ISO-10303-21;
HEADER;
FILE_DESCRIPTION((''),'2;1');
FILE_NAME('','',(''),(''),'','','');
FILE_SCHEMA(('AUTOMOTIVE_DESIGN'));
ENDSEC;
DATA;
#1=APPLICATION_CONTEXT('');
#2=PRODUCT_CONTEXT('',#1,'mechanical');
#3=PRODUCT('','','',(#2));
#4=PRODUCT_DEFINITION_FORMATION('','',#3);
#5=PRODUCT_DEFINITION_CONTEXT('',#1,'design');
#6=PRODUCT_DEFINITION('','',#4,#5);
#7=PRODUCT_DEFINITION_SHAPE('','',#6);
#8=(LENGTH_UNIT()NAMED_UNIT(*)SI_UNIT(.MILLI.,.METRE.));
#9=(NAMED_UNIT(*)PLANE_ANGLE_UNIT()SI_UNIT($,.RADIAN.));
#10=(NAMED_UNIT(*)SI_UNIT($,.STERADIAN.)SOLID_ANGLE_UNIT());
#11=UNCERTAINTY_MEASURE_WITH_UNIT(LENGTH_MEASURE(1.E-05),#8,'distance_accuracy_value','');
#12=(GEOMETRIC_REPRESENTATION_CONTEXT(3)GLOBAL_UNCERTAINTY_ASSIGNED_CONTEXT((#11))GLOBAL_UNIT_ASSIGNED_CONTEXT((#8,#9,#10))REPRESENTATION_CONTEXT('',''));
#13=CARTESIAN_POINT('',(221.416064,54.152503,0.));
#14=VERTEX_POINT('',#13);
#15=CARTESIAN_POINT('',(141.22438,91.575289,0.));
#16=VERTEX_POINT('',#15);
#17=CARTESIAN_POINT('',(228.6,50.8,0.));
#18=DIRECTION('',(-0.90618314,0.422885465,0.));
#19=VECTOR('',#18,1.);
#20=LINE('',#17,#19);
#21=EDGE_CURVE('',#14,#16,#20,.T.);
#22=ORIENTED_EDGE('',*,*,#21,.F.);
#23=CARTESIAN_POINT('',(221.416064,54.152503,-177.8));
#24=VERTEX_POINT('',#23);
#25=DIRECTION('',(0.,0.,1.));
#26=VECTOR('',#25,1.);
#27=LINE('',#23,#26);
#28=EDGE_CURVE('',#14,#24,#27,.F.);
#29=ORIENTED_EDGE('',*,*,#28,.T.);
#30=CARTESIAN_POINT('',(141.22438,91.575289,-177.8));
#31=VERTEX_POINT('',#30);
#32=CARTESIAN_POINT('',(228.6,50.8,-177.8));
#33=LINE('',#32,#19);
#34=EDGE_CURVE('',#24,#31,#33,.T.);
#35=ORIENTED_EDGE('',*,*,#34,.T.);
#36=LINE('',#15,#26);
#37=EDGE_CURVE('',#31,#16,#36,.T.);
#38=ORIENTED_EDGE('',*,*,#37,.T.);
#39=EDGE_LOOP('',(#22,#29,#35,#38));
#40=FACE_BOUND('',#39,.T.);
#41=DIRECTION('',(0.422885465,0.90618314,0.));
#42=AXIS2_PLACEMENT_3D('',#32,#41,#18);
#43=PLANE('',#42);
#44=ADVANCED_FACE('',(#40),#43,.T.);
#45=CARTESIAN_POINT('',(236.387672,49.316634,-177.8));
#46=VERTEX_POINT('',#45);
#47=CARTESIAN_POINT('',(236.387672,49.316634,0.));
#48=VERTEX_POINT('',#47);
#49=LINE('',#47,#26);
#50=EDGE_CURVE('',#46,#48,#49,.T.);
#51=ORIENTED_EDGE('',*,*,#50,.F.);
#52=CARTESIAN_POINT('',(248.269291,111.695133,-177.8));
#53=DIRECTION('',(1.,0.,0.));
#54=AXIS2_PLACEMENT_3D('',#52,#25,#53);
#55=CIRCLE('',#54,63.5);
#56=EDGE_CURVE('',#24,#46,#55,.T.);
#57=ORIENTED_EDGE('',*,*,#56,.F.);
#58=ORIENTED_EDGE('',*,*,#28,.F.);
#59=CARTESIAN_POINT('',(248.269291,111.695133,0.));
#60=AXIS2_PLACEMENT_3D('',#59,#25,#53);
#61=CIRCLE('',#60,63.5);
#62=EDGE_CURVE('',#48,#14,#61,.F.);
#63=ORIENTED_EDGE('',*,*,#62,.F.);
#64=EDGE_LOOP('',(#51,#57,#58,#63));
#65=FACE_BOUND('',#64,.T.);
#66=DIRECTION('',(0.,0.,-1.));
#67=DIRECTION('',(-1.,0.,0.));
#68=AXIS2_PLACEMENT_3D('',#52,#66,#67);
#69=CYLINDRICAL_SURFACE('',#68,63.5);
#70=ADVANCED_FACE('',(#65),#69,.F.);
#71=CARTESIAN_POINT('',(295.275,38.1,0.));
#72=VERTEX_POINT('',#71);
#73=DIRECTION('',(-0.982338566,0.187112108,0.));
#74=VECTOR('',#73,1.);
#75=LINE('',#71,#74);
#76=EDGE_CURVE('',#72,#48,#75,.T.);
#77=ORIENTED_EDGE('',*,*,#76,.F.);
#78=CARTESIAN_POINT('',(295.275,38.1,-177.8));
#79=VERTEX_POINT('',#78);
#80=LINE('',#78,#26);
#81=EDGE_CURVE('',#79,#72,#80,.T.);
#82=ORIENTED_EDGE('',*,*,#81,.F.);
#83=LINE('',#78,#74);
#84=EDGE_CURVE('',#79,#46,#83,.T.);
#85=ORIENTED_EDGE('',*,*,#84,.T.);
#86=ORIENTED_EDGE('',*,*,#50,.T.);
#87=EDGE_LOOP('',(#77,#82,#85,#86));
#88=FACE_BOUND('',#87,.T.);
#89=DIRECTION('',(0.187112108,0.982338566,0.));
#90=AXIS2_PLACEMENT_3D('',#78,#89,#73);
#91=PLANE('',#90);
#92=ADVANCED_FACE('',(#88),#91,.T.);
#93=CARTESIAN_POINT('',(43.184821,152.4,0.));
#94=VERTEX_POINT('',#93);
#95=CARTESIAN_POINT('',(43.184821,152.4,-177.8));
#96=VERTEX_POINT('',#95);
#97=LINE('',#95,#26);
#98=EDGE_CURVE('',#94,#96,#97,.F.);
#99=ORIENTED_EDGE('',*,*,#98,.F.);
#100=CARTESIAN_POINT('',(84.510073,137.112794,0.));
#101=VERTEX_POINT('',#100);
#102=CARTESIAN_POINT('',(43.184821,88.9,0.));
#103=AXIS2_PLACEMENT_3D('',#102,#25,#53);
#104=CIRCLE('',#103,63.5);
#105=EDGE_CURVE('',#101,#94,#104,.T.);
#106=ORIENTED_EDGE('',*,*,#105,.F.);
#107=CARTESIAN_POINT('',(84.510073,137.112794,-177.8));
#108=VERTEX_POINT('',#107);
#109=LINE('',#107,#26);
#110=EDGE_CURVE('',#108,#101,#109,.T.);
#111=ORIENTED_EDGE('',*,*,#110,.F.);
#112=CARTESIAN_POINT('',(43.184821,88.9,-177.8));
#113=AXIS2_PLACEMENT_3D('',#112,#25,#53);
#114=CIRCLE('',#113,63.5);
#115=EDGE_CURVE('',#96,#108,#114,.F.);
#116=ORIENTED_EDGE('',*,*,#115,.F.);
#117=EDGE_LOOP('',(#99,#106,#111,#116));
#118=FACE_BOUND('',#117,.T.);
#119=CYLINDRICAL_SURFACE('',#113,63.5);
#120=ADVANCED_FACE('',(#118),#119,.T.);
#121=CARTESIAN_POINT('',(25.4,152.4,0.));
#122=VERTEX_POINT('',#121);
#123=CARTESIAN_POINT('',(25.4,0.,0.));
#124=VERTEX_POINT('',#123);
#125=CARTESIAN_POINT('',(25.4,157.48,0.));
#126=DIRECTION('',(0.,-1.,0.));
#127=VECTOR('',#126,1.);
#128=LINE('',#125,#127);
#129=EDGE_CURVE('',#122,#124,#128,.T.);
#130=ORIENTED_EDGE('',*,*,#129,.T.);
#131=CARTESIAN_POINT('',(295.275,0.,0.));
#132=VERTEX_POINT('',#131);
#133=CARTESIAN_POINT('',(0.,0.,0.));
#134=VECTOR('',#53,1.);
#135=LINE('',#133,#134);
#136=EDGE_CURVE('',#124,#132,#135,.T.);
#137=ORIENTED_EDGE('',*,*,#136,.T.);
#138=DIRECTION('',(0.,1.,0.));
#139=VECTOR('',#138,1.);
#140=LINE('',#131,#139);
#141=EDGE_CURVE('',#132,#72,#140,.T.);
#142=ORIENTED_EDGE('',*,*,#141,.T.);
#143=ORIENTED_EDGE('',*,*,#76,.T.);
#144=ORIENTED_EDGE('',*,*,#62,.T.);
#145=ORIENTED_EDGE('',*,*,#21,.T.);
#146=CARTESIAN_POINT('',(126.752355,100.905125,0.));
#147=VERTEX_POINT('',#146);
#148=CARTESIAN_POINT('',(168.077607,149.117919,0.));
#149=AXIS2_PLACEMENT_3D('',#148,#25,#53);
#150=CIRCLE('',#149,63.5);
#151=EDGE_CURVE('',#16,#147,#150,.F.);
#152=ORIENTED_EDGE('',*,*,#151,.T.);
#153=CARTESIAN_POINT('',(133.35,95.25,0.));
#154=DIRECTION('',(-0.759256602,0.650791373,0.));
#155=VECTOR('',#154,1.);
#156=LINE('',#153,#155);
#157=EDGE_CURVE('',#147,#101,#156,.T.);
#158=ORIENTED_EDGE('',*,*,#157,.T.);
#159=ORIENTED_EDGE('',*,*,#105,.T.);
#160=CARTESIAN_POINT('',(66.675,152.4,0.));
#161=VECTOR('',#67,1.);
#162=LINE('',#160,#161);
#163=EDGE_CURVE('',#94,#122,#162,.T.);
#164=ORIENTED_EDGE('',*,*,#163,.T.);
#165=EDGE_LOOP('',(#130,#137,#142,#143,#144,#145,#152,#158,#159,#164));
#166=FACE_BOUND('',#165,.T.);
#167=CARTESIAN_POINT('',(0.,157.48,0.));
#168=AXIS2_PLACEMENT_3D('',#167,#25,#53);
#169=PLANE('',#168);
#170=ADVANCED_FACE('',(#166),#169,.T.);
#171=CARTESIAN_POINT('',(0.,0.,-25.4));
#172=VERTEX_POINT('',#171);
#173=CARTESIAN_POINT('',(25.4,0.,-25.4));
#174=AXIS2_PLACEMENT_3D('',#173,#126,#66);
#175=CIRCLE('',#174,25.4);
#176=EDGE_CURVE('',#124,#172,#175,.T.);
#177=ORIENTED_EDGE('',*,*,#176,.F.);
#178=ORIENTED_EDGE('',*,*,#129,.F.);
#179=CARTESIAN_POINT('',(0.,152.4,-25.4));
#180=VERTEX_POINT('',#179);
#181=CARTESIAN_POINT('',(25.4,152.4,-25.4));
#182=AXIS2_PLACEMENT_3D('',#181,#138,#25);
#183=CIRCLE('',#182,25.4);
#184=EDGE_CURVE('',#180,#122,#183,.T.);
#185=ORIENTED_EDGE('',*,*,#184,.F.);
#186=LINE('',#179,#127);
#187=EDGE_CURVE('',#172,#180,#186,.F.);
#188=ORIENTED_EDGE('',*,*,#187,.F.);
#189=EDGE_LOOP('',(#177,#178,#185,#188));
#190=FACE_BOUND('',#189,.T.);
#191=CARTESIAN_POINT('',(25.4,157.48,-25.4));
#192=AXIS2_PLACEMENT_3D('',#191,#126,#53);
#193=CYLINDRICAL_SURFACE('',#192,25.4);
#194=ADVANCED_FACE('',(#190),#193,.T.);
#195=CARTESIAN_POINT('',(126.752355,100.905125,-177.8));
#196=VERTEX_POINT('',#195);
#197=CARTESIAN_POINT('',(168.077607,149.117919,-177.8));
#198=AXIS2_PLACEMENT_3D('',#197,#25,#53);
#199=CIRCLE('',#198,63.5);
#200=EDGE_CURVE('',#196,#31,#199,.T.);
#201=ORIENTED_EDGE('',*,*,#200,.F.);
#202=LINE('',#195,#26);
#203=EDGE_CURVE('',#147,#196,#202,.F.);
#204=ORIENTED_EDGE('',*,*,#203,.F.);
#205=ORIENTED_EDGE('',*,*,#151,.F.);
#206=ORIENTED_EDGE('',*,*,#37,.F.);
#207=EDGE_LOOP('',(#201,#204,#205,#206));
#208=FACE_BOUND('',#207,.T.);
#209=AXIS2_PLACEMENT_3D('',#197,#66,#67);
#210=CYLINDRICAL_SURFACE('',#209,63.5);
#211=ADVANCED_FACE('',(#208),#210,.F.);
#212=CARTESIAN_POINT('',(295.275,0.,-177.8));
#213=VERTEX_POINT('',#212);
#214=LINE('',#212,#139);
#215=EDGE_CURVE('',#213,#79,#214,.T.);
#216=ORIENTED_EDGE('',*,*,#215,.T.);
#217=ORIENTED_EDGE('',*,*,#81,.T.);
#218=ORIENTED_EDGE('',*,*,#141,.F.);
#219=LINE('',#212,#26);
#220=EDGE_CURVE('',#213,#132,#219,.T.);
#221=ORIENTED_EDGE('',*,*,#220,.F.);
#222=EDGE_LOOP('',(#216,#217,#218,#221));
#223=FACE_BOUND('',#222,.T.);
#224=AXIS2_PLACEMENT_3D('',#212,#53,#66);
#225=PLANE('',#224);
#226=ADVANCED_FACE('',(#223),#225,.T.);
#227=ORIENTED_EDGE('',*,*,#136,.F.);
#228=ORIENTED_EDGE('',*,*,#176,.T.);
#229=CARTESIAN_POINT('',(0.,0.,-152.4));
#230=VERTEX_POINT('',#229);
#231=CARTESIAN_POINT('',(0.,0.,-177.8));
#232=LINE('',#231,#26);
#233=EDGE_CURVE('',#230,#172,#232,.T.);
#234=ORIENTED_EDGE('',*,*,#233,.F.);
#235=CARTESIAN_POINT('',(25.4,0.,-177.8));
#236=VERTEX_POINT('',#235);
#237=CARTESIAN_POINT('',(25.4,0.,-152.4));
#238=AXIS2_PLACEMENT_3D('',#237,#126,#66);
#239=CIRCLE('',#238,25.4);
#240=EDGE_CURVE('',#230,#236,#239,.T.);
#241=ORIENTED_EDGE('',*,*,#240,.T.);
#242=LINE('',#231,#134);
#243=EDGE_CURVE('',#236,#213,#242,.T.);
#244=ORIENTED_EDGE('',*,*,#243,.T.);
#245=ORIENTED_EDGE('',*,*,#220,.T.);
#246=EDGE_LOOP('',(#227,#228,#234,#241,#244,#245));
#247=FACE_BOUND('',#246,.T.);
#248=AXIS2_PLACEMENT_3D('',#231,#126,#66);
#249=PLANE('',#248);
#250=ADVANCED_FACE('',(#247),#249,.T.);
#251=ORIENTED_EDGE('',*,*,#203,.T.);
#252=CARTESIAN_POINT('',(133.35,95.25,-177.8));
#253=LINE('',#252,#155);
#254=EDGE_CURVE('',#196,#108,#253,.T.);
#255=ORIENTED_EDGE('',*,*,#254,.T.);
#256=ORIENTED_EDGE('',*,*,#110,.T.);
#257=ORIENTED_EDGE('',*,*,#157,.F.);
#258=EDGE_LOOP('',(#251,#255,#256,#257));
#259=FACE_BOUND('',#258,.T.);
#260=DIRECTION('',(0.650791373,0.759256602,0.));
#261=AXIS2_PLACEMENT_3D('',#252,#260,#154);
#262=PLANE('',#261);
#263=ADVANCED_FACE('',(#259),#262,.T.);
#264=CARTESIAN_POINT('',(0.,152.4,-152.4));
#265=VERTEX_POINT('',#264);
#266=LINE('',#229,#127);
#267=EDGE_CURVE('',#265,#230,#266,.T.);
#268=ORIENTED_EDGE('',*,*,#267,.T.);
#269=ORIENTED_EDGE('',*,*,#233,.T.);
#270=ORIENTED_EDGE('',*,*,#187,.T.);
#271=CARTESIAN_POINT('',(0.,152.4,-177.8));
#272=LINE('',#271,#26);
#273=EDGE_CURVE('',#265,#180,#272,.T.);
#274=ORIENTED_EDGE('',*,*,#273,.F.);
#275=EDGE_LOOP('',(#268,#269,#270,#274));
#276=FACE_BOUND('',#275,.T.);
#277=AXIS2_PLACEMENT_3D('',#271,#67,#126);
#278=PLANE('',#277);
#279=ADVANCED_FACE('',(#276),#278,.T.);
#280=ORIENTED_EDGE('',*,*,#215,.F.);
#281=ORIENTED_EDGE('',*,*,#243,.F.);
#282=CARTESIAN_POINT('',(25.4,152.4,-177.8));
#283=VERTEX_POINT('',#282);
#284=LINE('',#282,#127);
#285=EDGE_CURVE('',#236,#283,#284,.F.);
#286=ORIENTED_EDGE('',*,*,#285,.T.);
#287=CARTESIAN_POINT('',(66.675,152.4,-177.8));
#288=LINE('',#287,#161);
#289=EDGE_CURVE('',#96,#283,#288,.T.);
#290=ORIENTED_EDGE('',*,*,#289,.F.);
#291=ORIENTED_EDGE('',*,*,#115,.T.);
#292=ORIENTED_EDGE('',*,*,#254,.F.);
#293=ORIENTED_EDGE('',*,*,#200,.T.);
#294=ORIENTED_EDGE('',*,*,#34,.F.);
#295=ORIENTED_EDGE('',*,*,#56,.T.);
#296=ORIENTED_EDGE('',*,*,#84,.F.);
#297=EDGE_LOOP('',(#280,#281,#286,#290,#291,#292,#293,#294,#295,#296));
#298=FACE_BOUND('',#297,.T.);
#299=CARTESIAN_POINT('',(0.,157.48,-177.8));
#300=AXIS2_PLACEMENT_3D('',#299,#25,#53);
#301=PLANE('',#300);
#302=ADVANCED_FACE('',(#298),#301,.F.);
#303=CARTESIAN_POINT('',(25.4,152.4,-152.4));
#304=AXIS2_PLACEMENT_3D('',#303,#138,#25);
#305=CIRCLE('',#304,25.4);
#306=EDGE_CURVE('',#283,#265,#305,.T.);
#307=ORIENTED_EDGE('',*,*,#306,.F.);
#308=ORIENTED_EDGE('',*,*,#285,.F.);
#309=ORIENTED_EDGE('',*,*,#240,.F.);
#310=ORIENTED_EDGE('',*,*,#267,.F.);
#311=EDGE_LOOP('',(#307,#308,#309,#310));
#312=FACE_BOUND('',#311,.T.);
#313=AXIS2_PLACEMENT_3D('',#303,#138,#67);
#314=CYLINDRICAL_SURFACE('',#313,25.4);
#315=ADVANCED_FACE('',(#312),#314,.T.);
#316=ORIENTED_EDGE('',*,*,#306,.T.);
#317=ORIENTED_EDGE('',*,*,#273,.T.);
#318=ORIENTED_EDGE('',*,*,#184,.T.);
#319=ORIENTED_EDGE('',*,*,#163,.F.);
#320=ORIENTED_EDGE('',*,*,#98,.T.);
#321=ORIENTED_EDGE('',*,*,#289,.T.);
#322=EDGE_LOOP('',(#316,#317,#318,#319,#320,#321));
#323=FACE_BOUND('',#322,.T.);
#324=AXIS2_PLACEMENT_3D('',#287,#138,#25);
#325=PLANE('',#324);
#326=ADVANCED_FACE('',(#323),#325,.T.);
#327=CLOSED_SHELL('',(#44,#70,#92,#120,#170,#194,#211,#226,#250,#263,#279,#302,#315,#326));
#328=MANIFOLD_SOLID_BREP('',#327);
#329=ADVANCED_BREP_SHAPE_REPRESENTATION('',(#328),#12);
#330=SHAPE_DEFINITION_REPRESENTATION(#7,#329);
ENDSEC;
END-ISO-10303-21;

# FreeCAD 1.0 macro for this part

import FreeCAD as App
import Part
import Sketcher

V = App.Vector
Q = App.Units.Quantity


def edges_at(feature, points):
    """Names of the edges that pass closest to the given points."""
    edges = feature.Shape.Edges
    near = lambda p: min(range(len(edges)), key=lambda i: edges[i].distToShape(Part.Vertex(*p))[0])
    return sorted({f"Edge{near(p) + 1}" for p in points})


def add_polygon(sketch, points):
    """Adds a closed chain of lines whose ends are joined by coincident constraints."""
    first, n = sketch.GeometryCount, len(points)
    for a, b in zip(points, points[1:] + points[:1]):
        sketch.addGeometry(Part.LineSegment(App.Vector(*a, 0), App.Vector(*b, 0)), False)
    for i in range(n):
        sketch.addConstraint(Sketcher.Constraint("Coincident", first + i, 2, first + (i + 1) % n, 1))

doc = App.newDocument("Part")
body = doc.addObject("PartDesign::Body", "Body")

sketch1 = doc.addObject("Sketcher::SketchObject", "Sketch")
body.addObject(sketch1)
sketch1.AttachmentSupport = (doc.XY_Plane, [""])
sketch1.MapMode = "FlatFace"
add_polygon(sketch1, [(0, 152), (0, 0), (295, 0), (295, 38), (229, 51), (133, 95), (67, 152)])
sketch1.addConstraint(Sketcher.Constraint("Vertical", 0))
sketch1.addConstraint(Sketcher.Constraint("Horizontal", 1))
sketch1.addConstraint(Sketcher.Constraint("Vertical", 2))
sketch1.addConstraint(Sketcher.Constraint("Horizontal", 6))
sketch1.addConstraint(Sketcher.Constraint("Coincident", 0, 2, -1, 1))
sketch1.addConstraint(Sketcher.Constraint("DistanceY", 0, 2, 0, 1, Q("6 in")))
sketch1.addConstraint(Sketcher.Constraint("DistanceY", 2, 1, 2, 2, Q("1.5 in")))
sketch1.addConstraint(Sketcher.Constraint("DistanceX", -1, 1, 3, 2, Q("9 in")))
sketch1.addConstraint(Sketcher.Constraint("DistanceY", -1, 1, 3, 2, Q("2 in")))
sketch1.addConstraint(Sketcher.Constraint("DistanceX", 5, 2, 2, 2, Q("9 in")))
sketch1.addConstraint(Sketcher.Constraint("DistanceX", 1, 1, 1, 2, Q("11.625 in")))
sketch1.addConstraint(Sketcher.Constraint("DistanceX", -1, 1, 4, 2, Q("5.25 in")))
sketch1.addConstraint(Sketcher.Constraint("DistanceY", -1, 1, 4, 2, Q("3.75 in")))
pad1 = doc.addObject("PartDesign::Pad", "Pad")
body.addObject(pad1)
pad1.Profile = sketch1
pad1.Length = Q("7 in")
pad1.Reversed = True
doc.recompute()

fillet = doc.addObject("PartDesign::Fillet", "Fillet")
body.addObject(fillet)
fillet.Base = (pad1, edges_at(pad1, [(228.6, 50.8, -88.9), (66.675, 152.4, -88.9), (133.35, 95.25, -88.9)]))
fillet.Radius = Q("2.5 in")
doc.recompute()

fillet2 = doc.addObject("PartDesign::Fillet", "Fillet001")
body.addObject(fillet2)
fillet2.Base = (fillet, edges_at(fillet, [(0, 76.2, -177.8), (0, 76.2, 0)]))
fillet2.Radius = Q("1 in")

doc.recompute()
